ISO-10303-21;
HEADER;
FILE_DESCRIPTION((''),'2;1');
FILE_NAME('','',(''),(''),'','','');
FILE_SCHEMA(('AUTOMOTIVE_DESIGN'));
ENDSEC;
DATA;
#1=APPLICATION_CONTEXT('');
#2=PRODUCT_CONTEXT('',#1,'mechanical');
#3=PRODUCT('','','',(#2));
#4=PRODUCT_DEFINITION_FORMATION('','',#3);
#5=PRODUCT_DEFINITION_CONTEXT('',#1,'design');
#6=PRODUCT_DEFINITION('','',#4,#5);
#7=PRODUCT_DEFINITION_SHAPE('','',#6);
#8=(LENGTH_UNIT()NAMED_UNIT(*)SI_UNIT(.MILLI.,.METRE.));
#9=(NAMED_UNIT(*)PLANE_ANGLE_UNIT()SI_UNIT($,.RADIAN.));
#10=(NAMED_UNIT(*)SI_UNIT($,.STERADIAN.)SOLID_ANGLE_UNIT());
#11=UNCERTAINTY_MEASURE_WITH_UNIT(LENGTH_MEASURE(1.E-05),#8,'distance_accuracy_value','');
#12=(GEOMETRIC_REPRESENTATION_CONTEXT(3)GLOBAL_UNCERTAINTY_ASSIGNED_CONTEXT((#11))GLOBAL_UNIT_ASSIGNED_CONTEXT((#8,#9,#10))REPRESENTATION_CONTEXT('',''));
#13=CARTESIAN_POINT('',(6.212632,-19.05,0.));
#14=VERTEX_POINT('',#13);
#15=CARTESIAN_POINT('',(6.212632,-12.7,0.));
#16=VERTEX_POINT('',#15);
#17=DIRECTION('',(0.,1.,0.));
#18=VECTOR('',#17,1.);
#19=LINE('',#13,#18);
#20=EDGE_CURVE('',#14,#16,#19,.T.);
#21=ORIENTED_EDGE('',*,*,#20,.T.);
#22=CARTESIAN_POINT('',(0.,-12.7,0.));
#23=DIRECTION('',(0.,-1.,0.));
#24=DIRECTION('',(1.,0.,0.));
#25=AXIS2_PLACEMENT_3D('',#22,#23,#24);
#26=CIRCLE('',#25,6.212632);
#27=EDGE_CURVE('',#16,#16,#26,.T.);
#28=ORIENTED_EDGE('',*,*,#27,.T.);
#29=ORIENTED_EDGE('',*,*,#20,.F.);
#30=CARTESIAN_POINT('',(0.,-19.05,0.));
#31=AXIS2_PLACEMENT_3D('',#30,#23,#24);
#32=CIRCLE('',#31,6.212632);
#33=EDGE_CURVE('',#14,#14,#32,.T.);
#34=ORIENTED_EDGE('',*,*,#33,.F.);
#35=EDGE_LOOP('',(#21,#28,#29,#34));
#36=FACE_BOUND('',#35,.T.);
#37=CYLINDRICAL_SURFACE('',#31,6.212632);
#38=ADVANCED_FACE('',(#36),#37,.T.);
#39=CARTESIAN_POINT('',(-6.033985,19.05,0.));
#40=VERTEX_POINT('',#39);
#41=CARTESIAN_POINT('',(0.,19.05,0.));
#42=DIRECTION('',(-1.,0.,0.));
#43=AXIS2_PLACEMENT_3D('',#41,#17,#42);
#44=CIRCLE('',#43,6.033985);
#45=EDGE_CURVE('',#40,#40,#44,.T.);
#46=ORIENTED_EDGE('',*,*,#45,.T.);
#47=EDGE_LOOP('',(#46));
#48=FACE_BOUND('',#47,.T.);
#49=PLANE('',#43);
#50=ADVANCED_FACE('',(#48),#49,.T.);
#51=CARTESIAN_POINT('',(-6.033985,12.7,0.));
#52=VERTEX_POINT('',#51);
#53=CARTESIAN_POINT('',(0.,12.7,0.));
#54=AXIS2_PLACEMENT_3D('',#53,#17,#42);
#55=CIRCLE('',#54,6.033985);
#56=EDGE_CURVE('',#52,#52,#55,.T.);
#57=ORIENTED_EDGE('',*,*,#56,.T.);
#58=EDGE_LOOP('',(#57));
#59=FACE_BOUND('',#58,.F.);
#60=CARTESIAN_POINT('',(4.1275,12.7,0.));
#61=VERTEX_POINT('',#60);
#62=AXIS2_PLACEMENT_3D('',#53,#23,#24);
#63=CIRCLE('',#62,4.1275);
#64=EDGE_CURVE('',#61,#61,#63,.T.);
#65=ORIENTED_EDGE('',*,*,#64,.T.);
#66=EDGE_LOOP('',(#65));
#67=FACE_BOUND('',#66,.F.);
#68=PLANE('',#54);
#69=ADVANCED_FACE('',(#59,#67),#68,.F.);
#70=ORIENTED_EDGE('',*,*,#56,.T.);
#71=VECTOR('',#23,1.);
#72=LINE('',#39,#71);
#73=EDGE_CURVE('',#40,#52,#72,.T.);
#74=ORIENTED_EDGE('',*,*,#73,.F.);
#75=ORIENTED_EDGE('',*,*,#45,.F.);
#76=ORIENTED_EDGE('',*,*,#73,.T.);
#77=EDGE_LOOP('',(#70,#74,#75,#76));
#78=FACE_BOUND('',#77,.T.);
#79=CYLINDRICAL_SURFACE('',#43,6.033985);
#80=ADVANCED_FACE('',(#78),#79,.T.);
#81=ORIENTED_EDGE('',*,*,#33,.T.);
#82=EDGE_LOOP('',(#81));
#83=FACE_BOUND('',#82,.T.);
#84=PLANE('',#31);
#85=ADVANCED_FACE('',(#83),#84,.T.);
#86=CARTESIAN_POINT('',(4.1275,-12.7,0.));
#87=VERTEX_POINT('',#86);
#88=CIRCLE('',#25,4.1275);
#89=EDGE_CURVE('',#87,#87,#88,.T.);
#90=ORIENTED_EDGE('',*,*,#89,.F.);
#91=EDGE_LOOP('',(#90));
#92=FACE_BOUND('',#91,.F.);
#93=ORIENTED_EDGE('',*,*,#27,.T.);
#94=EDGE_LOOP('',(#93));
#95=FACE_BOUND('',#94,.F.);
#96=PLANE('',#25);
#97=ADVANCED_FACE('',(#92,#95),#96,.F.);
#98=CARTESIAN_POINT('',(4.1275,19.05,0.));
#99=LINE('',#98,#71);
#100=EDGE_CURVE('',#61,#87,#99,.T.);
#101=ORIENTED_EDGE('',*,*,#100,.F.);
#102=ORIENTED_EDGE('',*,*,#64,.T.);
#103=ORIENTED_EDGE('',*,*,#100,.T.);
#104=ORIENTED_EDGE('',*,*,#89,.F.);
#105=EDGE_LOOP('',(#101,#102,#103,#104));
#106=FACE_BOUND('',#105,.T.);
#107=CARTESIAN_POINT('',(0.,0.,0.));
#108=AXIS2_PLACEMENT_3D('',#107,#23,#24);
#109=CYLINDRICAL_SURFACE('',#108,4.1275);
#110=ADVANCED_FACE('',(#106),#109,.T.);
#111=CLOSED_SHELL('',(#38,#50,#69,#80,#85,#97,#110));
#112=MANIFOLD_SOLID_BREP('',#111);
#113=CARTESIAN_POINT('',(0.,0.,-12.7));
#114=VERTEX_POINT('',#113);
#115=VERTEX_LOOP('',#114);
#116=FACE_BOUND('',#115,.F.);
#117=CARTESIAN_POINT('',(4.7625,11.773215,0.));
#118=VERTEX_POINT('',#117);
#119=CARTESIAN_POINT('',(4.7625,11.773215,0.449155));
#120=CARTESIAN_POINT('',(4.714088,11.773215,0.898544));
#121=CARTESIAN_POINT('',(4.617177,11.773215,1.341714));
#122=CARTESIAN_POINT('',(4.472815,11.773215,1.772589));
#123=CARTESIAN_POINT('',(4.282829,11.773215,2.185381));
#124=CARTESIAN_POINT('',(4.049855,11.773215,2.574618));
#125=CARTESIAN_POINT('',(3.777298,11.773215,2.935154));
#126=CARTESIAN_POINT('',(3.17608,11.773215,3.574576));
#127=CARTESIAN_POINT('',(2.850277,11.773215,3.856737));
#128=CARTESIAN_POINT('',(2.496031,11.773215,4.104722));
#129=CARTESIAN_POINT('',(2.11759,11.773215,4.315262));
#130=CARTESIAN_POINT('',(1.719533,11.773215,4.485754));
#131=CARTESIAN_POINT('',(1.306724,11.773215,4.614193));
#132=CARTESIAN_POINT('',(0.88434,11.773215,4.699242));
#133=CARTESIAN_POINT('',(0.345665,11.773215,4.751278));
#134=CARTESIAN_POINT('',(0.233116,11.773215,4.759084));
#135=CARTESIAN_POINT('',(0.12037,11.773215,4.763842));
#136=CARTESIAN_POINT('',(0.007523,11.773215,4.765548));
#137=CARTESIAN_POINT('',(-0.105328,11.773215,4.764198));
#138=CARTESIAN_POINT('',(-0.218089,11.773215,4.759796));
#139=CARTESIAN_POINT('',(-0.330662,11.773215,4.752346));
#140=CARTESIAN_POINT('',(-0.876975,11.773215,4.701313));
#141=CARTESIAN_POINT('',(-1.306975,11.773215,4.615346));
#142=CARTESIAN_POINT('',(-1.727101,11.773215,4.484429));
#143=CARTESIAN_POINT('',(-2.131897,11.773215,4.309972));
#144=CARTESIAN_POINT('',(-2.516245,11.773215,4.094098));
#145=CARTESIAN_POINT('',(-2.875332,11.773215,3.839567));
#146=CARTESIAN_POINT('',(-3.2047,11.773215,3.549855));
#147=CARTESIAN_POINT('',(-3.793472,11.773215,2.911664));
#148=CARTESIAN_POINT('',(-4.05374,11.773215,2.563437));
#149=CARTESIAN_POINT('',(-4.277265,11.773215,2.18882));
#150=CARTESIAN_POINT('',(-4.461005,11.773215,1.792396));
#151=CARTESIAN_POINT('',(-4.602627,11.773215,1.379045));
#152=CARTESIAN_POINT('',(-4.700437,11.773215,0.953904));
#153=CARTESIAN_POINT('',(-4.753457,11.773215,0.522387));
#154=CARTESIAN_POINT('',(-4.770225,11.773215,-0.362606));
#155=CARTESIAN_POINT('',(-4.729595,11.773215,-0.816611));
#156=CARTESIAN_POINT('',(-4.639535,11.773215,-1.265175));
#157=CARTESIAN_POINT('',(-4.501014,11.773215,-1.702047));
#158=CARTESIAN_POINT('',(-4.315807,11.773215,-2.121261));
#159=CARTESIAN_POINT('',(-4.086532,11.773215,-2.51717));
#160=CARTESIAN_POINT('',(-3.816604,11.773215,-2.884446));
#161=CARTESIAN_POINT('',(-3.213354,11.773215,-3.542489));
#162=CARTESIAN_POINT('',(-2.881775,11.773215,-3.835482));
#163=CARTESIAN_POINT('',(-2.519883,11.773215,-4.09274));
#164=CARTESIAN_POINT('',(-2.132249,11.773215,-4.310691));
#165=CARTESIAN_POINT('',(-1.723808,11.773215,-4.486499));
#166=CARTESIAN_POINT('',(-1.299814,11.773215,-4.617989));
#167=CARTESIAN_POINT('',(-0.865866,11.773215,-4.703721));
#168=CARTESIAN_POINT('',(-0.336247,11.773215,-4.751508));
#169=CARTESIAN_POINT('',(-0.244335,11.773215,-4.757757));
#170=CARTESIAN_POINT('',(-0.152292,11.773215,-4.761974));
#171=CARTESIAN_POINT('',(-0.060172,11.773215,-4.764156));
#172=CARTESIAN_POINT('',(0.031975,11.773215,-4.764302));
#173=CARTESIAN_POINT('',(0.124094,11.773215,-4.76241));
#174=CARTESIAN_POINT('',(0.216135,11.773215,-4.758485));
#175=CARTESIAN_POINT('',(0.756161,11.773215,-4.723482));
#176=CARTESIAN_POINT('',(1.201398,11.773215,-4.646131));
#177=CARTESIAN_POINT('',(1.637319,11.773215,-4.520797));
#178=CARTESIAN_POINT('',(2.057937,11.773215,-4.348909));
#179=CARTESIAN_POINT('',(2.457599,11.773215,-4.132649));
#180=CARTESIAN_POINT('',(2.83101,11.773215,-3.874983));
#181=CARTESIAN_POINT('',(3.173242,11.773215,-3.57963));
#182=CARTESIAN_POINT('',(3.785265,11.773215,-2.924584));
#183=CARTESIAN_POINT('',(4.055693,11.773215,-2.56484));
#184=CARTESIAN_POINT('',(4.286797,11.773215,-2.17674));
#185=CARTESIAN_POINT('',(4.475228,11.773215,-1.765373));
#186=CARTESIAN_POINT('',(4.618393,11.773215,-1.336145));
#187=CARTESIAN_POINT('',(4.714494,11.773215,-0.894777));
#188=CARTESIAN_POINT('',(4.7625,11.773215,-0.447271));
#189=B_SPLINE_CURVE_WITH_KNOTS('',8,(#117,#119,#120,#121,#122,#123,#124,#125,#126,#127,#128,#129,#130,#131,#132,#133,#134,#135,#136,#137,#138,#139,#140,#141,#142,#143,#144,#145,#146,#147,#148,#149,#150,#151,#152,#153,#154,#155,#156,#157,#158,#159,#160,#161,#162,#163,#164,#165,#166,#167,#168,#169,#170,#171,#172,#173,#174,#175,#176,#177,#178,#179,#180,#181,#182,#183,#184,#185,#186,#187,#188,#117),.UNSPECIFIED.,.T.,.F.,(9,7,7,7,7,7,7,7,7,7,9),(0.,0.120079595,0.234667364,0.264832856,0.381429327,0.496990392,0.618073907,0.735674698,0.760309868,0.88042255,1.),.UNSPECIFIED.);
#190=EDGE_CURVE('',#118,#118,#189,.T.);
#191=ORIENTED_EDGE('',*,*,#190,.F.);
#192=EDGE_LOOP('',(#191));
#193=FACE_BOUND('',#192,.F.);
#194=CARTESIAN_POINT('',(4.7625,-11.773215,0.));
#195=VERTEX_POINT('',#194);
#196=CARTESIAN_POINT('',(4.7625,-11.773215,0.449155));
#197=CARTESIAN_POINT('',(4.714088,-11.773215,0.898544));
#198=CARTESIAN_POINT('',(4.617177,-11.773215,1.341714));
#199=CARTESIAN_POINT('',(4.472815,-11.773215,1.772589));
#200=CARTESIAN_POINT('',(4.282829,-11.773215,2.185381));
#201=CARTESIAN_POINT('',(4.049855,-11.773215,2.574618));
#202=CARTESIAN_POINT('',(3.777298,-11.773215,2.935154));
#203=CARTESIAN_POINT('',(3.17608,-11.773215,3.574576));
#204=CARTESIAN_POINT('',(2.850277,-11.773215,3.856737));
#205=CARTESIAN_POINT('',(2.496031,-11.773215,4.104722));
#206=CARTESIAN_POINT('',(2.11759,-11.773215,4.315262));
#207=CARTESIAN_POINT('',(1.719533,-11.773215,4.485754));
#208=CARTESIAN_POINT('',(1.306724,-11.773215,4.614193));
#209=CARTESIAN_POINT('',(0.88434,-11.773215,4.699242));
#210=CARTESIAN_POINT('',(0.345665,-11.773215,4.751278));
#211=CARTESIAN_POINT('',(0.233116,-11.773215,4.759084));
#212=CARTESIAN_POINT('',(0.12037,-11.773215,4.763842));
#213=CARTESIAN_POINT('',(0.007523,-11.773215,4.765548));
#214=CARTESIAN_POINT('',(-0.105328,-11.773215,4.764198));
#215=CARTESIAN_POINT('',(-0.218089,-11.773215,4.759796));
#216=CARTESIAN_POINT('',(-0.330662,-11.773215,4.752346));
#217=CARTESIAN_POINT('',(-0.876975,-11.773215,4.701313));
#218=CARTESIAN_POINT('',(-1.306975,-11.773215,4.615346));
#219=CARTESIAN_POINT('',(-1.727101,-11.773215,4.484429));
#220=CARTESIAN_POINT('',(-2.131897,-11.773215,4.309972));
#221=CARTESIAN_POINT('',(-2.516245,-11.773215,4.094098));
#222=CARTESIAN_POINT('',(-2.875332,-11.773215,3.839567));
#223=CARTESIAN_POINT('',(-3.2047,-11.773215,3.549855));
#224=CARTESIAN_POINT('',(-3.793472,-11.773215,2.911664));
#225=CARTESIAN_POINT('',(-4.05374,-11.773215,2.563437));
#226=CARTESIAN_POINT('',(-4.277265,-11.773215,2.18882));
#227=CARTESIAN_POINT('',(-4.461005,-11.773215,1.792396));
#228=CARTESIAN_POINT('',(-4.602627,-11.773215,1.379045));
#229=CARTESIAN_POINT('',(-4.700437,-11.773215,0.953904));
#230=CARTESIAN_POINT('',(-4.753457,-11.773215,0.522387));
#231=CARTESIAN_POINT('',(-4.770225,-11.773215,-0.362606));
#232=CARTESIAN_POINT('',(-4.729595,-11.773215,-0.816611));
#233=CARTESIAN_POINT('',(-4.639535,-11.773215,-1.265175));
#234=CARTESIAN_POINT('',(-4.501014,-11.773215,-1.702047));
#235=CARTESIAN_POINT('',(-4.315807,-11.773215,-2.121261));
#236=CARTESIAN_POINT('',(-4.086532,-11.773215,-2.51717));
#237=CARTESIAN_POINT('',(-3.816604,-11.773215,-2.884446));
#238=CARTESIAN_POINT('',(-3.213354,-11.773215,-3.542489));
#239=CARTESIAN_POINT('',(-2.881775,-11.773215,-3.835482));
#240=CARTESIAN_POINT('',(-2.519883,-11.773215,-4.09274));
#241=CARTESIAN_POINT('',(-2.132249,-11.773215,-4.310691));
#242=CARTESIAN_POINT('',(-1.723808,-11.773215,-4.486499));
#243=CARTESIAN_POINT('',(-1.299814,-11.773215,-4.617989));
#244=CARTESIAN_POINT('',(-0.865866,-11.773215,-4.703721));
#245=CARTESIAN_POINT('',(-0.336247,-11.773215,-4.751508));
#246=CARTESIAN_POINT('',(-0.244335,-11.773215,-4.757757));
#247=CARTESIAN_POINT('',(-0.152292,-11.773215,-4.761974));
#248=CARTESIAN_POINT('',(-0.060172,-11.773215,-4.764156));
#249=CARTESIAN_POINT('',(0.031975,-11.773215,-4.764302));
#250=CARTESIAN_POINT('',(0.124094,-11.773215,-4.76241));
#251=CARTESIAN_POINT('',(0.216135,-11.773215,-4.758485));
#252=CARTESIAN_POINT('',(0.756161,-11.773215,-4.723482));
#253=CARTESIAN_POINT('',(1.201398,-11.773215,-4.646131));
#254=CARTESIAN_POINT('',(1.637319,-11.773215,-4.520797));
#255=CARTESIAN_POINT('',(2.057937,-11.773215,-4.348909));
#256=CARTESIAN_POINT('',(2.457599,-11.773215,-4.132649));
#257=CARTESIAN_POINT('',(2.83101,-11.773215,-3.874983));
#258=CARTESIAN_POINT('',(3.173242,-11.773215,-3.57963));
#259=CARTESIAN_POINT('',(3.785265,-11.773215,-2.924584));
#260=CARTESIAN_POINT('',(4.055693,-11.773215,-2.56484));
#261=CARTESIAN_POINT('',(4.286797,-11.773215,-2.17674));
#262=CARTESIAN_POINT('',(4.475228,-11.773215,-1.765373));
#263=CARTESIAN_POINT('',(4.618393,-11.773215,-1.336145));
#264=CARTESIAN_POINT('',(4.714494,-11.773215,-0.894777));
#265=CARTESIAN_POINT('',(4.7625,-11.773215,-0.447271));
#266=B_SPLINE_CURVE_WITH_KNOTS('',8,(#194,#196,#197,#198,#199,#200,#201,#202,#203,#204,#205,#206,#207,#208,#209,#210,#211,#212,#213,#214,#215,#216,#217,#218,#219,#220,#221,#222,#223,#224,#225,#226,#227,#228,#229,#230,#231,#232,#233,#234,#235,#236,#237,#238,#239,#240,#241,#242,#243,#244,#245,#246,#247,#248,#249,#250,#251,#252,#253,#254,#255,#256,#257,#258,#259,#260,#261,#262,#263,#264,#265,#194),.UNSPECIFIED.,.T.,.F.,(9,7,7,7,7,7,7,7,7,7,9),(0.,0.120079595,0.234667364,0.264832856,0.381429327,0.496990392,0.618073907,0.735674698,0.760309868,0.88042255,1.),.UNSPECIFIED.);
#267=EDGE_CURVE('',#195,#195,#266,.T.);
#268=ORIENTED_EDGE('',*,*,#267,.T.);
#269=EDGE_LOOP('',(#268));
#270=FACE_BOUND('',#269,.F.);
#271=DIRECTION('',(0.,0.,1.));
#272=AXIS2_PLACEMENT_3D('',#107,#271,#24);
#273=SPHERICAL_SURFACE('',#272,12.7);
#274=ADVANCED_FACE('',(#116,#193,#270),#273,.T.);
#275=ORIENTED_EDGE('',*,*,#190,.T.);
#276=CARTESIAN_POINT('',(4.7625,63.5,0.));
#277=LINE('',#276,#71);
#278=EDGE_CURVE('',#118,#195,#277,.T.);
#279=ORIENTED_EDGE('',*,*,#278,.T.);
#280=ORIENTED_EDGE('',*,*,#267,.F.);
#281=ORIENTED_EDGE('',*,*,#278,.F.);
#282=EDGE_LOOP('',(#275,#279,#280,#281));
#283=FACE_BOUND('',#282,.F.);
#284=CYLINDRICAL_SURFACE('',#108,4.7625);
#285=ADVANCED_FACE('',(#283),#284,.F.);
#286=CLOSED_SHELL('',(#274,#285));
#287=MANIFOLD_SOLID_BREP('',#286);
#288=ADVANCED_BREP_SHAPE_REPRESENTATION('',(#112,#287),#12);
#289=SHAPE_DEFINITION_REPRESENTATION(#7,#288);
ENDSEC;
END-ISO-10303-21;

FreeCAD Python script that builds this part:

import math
import FreeCAD as App
import Part
import Sketcher
from FreeCAD import Vector
Q = App.Units.Quantity

doc = App.newDocument("Part")
body = doc.addObject("PartDesign::Body", "Body")

sketch1 = body.newObject("Sketcher::SketchObject", "Sketch")
sketch1.AttachmentSupport = (doc.getObject("XZ_Plane"), [""])
sketch1.MapMode = "FlatFace"
sketch1.addGeometry([
    Part.LineSegment(Vector(0, 13, 0), Vector(0, -13, 0)),
    Part.ArcOfCircle(Part.Circle(Vector(0, 0, 0), Vector(0, 0, 1), 13), math.radians(-90), math.radians(90)),
], False)
sketch1.addConstraint([
    Sketcher.Constraint("Coincident", 0, 1, 1, 2),
    Sketcher.Constraint("Coincident", 1, 1, 0, 2),
    Sketcher.Constraint("Vertical", 0),
    Sketcher.Constraint("Coincident", 1, 3, -1, 1),
    Sketcher.Constraint("PointOnObject", 0, 1, -2),
    Sketcher.Constraint("Radius", 1, Q("0.5 in")),
])
revolution = body.newObject("PartDesign::Revolution", "Revolution")
revolution.Profile = sketch1
revolution.ReferenceAxis = (sketch1, ["V_Axis"])
revolution.Angle = 360

sketch2 = body.newObject("Sketcher::SketchObject", "Sketch001")
sketch2.AttachmentSupport = (doc.getObject("XZ_Plane"), [""])
sketch2.MapMode = "FlatFace"
sketch2.addGeometry(Part.Circle(Vector(0, 0, 0), Vector(0, 0, 1), 4.8), False)
sketch2.addConstraint([
    Sketcher.Constraint("Coincident", 0, 3, -1, 1),
    Sketcher.Constraint("Diameter", 0, Q("0.375 in")),
])
pocket1 = body.newObject("PartDesign::Pocket", "Pocket")
pocket1.Profile = sketch2
pocket1.Length = Q("5 in")
pocket1.Midplane = True
body2 = doc.addObject("PartDesign::Body", "Body001")

sketch3 = body2.newObject("Sketcher::SketchObject", "Sketch002")
sketch3.AttachmentSupport = (doc.getObject("XZ_Plane001"), [""])
sketch3.MapMode = "FlatFace"
sketch3.addGeometry(Part.Circle(Vector(0, 0, 0), Vector(0, 0, 1), 4.1), False)
sketch3.addConstraint([
    Sketcher.Constraint("Coincident", 0, 3, -1, 1),
    Sketcher.Constraint("Diameter", 0, Q("0.325 in")),
])
pad1 = body2.newObject("PartDesign::Pad", "Pad")
pad1.Profile = sketch3
pad1.Length = Q("1.5 in")
pad1.Midplane = True

sketch4 = body2.newObject("Sketcher::SketchObject", "Sketch003")
sketch4.AttachmentSupport = (doc.getObject("XZ_Plane001"), [""])
sketch4.MapMode = "FlatFace"
sketch4.AttachmentOffset = App.Placement(Vector(0, 0, 0.75 * 25.4), App.Rotation())
sketch4.addGeometry([
    Part.Circle(Vector(0, 0, 0), Vector(0, 0, 1), 6.2),
    Part.Circle(Vector(0, 0, 0), Vector(0, 0, 1), 4.1),
], False)
sketch4.addConstraint([
    Sketcher.Constraint("Coincident", 0, 3, -1, 1),
    Sketcher.Constraint("Coincident", 1, 3, -1, 1),
    Sketcher.Constraint("Diameter", 1, Q("0.325 in")),
    Sketcher.Constraint("Diameter", 0, 12.425264),
])
pad2 = body2.newObject("PartDesign::Pad", "Pad001")
pad2.Profile = sketch4
pad2.Length = Q("0.25 in")
pad2.Reversed = True

sketch5 = body2.newObject("Sketcher::SketchObject", "Sketch004")
sketch5.AttachmentSupport = (doc.getObject("XZ_Plane001"), [""])
sketch5.MapMode = "FlatFace"
sketch5.AttachmentOffset = App.Placement(Vector(0, 0, -0.75 * 25.4), App.Rotation())
sketch5.addGeometry(Part.Circle(Vector(0, 0, 0), Vector(0, 0, 1), 6), False)
sketch5.addConstraint([
    Sketcher.Constraint("Coincident", 0, 3, -1, 1),
    Sketcher.Constraint("Diameter", 0, 12.06797),
])
pad3 = body2.newObject("PartDesign::Pad", "Pad002")
pad3.Profile = sketch5
pad3.Length = Q("0.25 in")

doc.recompute()
